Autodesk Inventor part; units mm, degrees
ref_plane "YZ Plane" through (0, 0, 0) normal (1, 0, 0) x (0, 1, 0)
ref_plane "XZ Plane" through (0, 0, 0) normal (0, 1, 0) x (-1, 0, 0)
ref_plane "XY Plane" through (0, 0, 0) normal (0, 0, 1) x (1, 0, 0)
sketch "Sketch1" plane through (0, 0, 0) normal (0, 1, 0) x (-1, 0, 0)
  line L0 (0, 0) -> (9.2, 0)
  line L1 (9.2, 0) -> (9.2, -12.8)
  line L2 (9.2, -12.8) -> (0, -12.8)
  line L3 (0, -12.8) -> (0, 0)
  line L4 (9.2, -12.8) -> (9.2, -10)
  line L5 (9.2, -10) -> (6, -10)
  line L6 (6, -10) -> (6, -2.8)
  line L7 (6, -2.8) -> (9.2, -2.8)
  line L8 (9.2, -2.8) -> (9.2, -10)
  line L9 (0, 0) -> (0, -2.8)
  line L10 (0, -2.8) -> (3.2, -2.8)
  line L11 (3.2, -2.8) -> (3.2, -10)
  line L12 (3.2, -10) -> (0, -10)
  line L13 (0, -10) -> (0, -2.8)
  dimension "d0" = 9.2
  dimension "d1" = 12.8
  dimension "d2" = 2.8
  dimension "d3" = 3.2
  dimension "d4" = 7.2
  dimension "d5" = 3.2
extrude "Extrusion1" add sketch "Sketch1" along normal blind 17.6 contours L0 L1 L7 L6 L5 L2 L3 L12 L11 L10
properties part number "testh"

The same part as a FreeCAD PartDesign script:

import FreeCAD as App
import Part
import Sketcher


def add_polygon(sketch, points):
    """Adds a closed chain of lines whose ends are joined by coincident constraints."""
    first, n = sketch.GeometryCount, len(points)
    for a, b in zip(points, points[1:] + points[:1]):
        sketch.addGeometry(Part.LineSegment(App.Vector(*a, 0), App.Vector(*b, 0)), False)
    for i in range(n):
        sketch.addConstraint(Sketcher.Constraint("Coincident", first + i, 2, first + (i + 1) % n, 1))

doc = App.newDocument("Part")
params = doc.addObject("Spreadsheet::Sheet", "Params")
for row, (alias, value) in enumerate([
    ("sketch1_width", "9.2 mm"),
    ("sketch1_width2", "3.2 mm"),
    ("sketch1_height", "2.8 mm"),
    ("sketch1_height2", "7.2 mm"),
    ("pad1_length", "17.6 mm"),
], start=1):
    params.set(f"A{row}", alias)
    params.set(f"B{row}", "=" + value)
    params.setAlias(f"B{row}", alias)

body = doc.addObject("PartDesign::Body", "Body")

sketch1 = body.newObject("Sketcher::SketchObject", "Sketch")
sketch1.AttachmentSupport = (doc.getObject("XZ_Plane"), [""])
sketch1.MapMode = "FlatFace"
add_polygon(sketch1, [(-9.2, 0), (0, 0), (0, -2.8), (-3.2, -2.8), (-3.2, -10), (0, -10), (0, -12.8), (-9.2, -12.8), (-9.2, -10), (-6, -10), (-6, -2.8), (-9.2, -2.8)])
sketch1.addConstraint([
    Sketcher.Constraint("Horizontal", 0),
    Sketcher.Constraint("Vertical", 1),
    Sketcher.Constraint("Horizontal", 2),
    Sketcher.Constraint("Vertical", 3),
    Sketcher.Constraint("Horizontal", 4),
    Sketcher.Constraint("Vertical", 5),
    Sketcher.Constraint("Horizontal", 6),
    Sketcher.Constraint("Vertical", 7),
    Sketcher.Constraint("Horizontal", 8),
    Sketcher.Constraint("Vertical", 9),
    Sketcher.Constraint("Horizontal", 10),
    Sketcher.Constraint("Vertical", 11),
    Sketcher.Constraint("Coincident", 0, 2, -1, 1),
    Sketcher.Constraint("PointOnObject", 4, 2, -2),
    Sketcher.Constraint("Horizontal", 4, 2, 7, 2),
    Sketcher.Constraint("Horizontal", 2, 2, 9, 2),
    Sketcher.Constraint("Vertical", 7, 2, 10, 2),
    Sketcher.Constraint("Equal", 4, 8),
    Sketcher.Constraint("Equal", 1, 5),
    Sketcher.Constraint("DistanceX", 0, 1, 0, 2, 9.2),
    Sketcher.Constraint("DistanceX", 2, 2, 2, 1, 3.2),
    Sketcher.Constraint("DistanceY", 1, 2, 1, 1, 2.8),
    Sketcher.Constraint("DistanceY", 3, 2, 3, 1, 7.2),
])
sketch1.setExpression("Constraints[31]", "Params.sketch1_width")
sketch1.setExpression("Constraints[32]", "Params.sketch1_width2")
sketch1.setExpression("Constraints[33]", "Params.sketch1_height")
sketch1.setExpression("Constraints[34]", "Params.sketch1_height2")
pad1 = body.newObject("PartDesign::Pad", "Pad")
pad1.Profile = sketch1
pad1.setExpression("Length", "Params.pad1_length")
pad1.Reversed = True

doc.recompute()
